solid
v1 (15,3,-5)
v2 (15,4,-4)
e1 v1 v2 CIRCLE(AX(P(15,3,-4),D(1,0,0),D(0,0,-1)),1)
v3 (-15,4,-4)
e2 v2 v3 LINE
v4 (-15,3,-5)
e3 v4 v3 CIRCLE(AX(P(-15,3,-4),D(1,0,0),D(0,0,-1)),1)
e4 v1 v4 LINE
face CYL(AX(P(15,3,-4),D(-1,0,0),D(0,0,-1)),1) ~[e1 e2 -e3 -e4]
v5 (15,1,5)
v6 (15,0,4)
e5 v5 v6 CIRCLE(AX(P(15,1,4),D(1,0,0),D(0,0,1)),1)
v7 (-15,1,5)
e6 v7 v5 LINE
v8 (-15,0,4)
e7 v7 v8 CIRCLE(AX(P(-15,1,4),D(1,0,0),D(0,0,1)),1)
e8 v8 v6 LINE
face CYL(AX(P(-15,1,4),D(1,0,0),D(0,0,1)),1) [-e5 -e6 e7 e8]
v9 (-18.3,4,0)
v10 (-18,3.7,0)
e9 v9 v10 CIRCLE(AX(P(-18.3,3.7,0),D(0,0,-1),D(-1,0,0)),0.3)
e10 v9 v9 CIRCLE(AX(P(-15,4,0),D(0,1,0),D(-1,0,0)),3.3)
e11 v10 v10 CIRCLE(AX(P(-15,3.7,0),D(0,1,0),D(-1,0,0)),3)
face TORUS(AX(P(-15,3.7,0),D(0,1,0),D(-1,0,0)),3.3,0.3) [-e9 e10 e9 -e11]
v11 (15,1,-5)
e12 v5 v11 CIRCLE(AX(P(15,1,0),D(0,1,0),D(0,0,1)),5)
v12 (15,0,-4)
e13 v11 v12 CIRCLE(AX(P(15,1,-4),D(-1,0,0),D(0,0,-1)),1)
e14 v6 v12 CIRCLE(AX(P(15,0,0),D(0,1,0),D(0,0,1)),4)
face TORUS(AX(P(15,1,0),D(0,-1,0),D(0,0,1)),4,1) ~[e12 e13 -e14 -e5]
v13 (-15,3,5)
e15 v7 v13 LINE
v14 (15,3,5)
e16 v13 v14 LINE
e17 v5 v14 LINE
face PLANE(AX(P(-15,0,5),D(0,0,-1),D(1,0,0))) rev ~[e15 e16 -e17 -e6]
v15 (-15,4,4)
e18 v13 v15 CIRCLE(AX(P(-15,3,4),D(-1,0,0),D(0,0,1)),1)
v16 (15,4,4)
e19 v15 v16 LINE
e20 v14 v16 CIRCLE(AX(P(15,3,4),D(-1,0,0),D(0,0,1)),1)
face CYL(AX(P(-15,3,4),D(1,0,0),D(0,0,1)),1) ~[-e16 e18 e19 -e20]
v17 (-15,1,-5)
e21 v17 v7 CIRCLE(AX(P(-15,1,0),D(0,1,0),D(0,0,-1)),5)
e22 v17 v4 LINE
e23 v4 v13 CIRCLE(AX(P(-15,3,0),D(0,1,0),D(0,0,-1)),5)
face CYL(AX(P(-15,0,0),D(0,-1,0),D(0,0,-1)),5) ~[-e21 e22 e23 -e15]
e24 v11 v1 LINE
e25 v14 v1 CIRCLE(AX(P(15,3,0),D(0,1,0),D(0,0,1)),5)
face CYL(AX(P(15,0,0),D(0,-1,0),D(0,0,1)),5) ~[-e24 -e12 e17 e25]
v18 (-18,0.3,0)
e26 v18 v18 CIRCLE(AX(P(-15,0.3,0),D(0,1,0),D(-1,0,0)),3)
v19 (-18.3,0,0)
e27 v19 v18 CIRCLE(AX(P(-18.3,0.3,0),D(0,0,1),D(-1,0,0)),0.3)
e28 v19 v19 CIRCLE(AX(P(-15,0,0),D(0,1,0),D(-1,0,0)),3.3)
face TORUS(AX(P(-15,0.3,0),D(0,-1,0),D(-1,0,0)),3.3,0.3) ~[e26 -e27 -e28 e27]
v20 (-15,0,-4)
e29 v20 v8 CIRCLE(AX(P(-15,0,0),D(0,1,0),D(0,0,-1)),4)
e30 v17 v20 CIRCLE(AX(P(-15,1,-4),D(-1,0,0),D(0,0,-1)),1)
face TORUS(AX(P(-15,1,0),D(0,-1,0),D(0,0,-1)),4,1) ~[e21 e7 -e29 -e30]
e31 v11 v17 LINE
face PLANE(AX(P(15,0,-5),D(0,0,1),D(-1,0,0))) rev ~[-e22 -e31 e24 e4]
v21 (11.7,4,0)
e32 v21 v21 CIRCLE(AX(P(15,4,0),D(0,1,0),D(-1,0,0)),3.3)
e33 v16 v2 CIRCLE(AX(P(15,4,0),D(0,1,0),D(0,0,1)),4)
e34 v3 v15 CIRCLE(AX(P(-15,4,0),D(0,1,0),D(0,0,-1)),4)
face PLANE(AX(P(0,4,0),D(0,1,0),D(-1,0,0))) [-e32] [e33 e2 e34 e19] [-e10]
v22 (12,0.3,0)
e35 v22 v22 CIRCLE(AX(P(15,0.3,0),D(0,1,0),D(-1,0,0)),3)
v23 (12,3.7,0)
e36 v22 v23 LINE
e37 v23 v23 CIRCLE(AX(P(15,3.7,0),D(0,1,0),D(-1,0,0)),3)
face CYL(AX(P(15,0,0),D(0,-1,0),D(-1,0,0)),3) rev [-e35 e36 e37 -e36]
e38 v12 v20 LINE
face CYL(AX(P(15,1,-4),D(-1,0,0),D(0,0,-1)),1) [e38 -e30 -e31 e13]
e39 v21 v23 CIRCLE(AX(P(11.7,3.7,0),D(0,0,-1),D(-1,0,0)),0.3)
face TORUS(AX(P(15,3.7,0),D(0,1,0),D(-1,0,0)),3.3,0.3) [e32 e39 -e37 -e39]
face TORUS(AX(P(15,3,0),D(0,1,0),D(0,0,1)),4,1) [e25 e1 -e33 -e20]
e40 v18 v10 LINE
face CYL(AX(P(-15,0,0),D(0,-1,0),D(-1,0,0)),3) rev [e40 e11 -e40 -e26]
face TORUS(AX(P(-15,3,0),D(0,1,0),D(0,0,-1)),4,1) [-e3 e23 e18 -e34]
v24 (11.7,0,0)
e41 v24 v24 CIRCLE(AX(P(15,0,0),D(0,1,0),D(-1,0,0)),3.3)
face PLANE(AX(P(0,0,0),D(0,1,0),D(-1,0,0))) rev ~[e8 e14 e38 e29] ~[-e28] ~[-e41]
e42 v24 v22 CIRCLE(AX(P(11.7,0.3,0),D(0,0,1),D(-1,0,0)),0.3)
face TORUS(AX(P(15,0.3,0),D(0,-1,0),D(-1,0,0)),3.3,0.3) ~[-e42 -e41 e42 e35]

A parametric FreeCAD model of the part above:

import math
import FreeCAD as App
import Part
import Sketcher
from FreeCAD import Vector


def edges_at(feature, points):
    """Names of the edges that pass closest to the given points."""
    edges = feature.Shape.Edges
    near = lambda p: min(range(len(edges)), key=lambda i: edges[i].distToShape(Part.Vertex(*p))[0])
    return sorted({f"Edge{near(p) + 1}" for p in points})

doc = App.newDocument("Part")
body = doc.addObject("PartDesign::Body", "Body")

# Sketch on XZ plane
sketch1 = body.newObject("Sketcher::SketchObject", "Sketch")
sketch1.AttachmentSupport = (doc.getObject("XZ_Plane"), [""])
sketch1.MapMode = "FlatFace"
sketch1.addGeometry(Part.ArcOfCircle(Part.Circle(Vector(-15, 0, 0), Vector(0, 0, 1), 5), math.radians(90), math.radians(270)), False)
sketch1.addGeometry(Part.LineSegment(Vector(-15, 5, 0), Vector(15, 5, 0)), False)
sketch1.addGeometry(Part.ArcOfCircle(Part.Circle(Vector(15, 0, 0), Vector(0, 0, 1), 5), math.radians(-90), math.radians(90)), False)
sketch1.addGeometry(Part.LineSegment(Vector(15, -5, 0), Vector(-15, -5, 0)), False)
sketch1.addGeometry(Part.Circle(Vector(15, 0, 0), Vector(0, 0, 1), 3), False)
sketch1.addGeometry(Part.Circle(Vector(-15, 0, 0), Vector(0, 0, 1), 3), False)
sketch1.addConstraint(Sketcher.Constraint("Tangent", 0, 1, 1, 1))
sketch1.addConstraint(Sketcher.Constraint("Tangent", 1, 2, 2, 2))
sketch1.addConstraint(Sketcher.Constraint("Tangent", 2, 1, 3, 1))
sketch1.addConstraint(Sketcher.Constraint("Tangent", 3, 2, 0, 2))
sketch1.addConstraint(Sketcher.Constraint("Horizontal", 1))
sketch1.addConstraint(Sketcher.Constraint("Horizontal", 3))
sketch1.addConstraint(Sketcher.Constraint("Coincident", 4, 3, 2, 3))
sketch1.addConstraint(Sketcher.Constraint("Coincident", 5, 3, 0, 3))
sketch1.addConstraint(Sketcher.Constraint("Equal", 4, 5))
sketch1.addConstraint(Sketcher.Constraint("Symmetric", 0, 3, 2, 3, -1, 1))
sketch1.addConstraint(Sketcher.Constraint("Diameter", 4, 6.0))
sketch1.addConstraint(Sketcher.Constraint("Radius", 0, 5.0))
sketch1.addConstraint(Sketcher.Constraint("DistanceX", 1, 1, 1, 2, 30.0))
pad1 = body.newObject("PartDesign::Pad", "Pad")
pad1.Profile = sketch1
pad1.Length = 4
pad1.Reversed = True
doc.recompute()

fillet = body.newObject("PartDesign::Fillet", "Fillet")
fillet.Base = (pad1, edges_at(pad1, [
    (20, 4, 0),
    (0, 4, -5),
    (-20, 4, 0),
    (0, 4, 5),
    (20, 0, 0),
    (0, 0, -5),
    (-20, 0, 0),
    (0, 0, 5),
]))
fillet.Radius = 1
doc.recompute()

fillet2 = body.newObject("PartDesign::Fillet", "Fillet001")
fillet2.Base = (fillet, edges_at(fillet, [
    (-12, 0, 0),
    (-12, 4, 0),
    (18, 0, 0),
    (18, 4, 0),
]))
fillet2.Radius = 0.3

doc.recompute()
